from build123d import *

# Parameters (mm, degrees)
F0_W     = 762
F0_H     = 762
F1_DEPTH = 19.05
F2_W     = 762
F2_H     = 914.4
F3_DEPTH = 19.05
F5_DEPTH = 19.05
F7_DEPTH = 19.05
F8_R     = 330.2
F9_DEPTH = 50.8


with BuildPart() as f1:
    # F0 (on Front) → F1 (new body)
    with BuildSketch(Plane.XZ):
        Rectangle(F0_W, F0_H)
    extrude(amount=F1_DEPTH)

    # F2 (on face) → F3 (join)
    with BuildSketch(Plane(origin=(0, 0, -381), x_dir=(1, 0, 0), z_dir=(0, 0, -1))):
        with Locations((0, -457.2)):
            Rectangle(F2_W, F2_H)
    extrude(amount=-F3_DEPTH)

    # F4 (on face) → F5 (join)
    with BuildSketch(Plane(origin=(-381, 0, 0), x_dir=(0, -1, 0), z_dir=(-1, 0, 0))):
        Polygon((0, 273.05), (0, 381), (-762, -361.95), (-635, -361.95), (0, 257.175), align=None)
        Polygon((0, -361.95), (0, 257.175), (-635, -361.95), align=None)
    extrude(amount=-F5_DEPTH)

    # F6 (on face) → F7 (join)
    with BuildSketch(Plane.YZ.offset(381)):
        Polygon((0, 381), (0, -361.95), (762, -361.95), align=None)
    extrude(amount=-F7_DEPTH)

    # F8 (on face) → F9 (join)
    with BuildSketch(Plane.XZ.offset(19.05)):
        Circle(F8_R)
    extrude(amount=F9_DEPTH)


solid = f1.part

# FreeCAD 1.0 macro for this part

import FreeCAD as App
import Part
import Sketcher
Q = App.Units.Quantity


def add_polygon(sketch, points):
    """Adds a closed chain of lines whose ends are joined by coincident constraints."""
    first, n = sketch.GeometryCount, len(points)
    for a, b in zip(points, points[1:] + points[:1]):
        sketch.addGeometry(Part.LineSegment(App.Vector(*a, 0), App.Vector(*b, 0)), False)
    for i in range(n):
        sketch.addConstraint(Sketcher.Constraint("Coincident", first + i, 2, first + (i + 1) % n, 1))

doc = App.newDocument("Part")
params = doc.addObject("Spreadsheet::Sheet", "Params")
for row, (alias, value) in enumerate([
    ("sketch1_width", "30 in"),
    ("pad1_length", "0.75 in"),
    ("sketch2_width", "30 in"),
    ("sketch2_height", "36 in"),
    ("pad2_length", "0.75 in"),
    ("sketch3_width", "30 in"),
    ("sketch3_height", "29.25 in"),
    ("pad3_length", "0.75 in"),
    ("sketch4_width", "30 in"),
    ("sketch4_height", "29.25 in"),
    ("pad4_length", "0.75 in"),
    ("sketch5_diameter", "26 in"),
    ("pad5_length", "2 in"),
], start=1):
    params.set(f"A{row}", alias)
    params.set(f"B{row}", "=" + value)
    params.setAlias(f"B{row}", alias)

body = doc.addObject("PartDesign::Body", "Body")

sketch1 = doc.addObject("Sketcher::SketchObject", "Sketch")
body.addObject(sketch1)
sketch1.AttachmentSupport = (doc.XZ_Plane, [""])
sketch1.MapMode = "FlatFace"
add_polygon(sketch1, [(-381, 381), (-381, -381), (381, -381), (381, 381)])
sketch1.addConstraint([
    Sketcher.Constraint("Vertical", 0),
    Sketcher.Constraint("Horizontal", 1),
    Sketcher.Constraint("Vertical", 2),
    Sketcher.Constraint("Horizontal", 3),
    Sketcher.Constraint("Symmetric", 0, 2, 2, 2, -1, 1),
    Sketcher.Constraint("Equal", 3, 0),
    Sketcher.Constraint("DistanceX", 1, 1, 1, 2, Q("30 in")),
])
sketch1.setExpression("Constraints[10]", "Params.sketch1_width")
pad1 = doc.addObject("PartDesign::Pad", "Pad")
body.addObject(pad1)
pad1.Profile = sketch1
pad1.setExpression("Length", "Params.pad1_length")

sketch2 = doc.addObject("Sketcher::SketchObject", "Sketch001")
body.addObject(sketch2)
sketch2.AttachmentSupport = (doc.XY_Plane, [""])
sketch2.MapMode = "FlatFace"
sketch2.AttachmentOffset = App.Placement(App.Vector(0, 0, -15 * 25.4), App.Rotation())
add_polygon(sketch2, [(-381, 0), (-381, 914.4), (381, 914.4), (381, 0)])
sketch2.addConstraint([
    Sketcher.Constraint("Vertical", 0),
    Sketcher.Constraint("Horizontal", 1),
    Sketcher.Constraint("Vertical", 2),
    Sketcher.Constraint("Horizontal", 3),
    Sketcher.Constraint("Symmetric", 2, 2, 3, 2, -1, 1),
    Sketcher.Constraint("DistanceX", 1, 1, 1, 2, Q("30 in")),
    Sketcher.Constraint("DistanceY", 0, 1, 0, 2, Q("36 in")),
])
sketch2.setExpression("Constraints[9]", "Params.sketch2_width")
sketch2.setExpression("Constraints[10]", "Params.sketch2_height")
pad2 = doc.addObject("PartDesign::Pad", "Pad001")
body.addObject(pad2)
pad2.Profile = sketch2
pad2.setExpression("Length", "Params.pad2_length")

sketch3 = doc.addObject("Sketcher::SketchObject", "Sketch002")
body.addObject(sketch3)
sketch3.AttachmentSupport = (doc.YZ_Plane, [""])
sketch3.MapMode = "FlatFace"
sketch3.AttachmentOffset = App.Placement(App.Vector(0, 0, -15 * 25.4), App.Rotation())
add_polygon(sketch3, [(0, 381), (762, -361.95), (0, -361.95)])
sketch3.addConstraint([
    Sketcher.Constraint("Horizontal", 1),
    Sketcher.Constraint("Vertical", 2),
    Sketcher.Constraint("PointOnObject", 1, 2, -2),
    Sketcher.Constraint("DistanceX", 1, 2, 1, 1, Q("30 in")),
    Sketcher.Constraint("DistanceY", -1, 1, 2, 2, Q("15 in")),
    Sketcher.Constraint("DistanceY", 2, 1, 2, 2, Q("29.25 in")),
])
sketch3.setExpression("Constraints[6]", "Params.sketch3_width")
sketch3.setExpression("Constraints[8]", "Params.sketch3_height")
pad3 = doc.addObject("PartDesign::Pad", "Pad002")
body.addObject(pad3)
pad3.Profile = sketch3
pad3.setExpression("Length", "Params.pad3_length")

sketch4 = doc.addObject("Sketcher::SketchObject", "Sketch003")
body.addObject(sketch4)
sketch4.AttachmentSupport = (doc.YZ_Plane, [""])
sketch4.MapMode = "FlatFace"
sketch4.AttachmentOffset = App.Placement(App.Vector(0, 0, 15 * 25.4), App.Rotation())
add_polygon(sketch4, [(0, 381), (0, -361.95), (762, -361.95)])
sketch4.addConstraint([
    Sketcher.Constraint("Vertical", 0),
    Sketcher.Constraint("Horizontal", 1),
    Sketcher.Constraint("PointOnObject", 0, 2, -2),
    Sketcher.Constraint("DistanceX", 1, 1, 1, 2, Q("30 in")),
    Sketcher.Constraint("DistanceY", -1, 1, 2, 2, Q("15 in")),
    Sketcher.Constraint("DistanceY", 0, 2, 0, 1, Q("29.25 in")),
])
sketch4.setExpression("Constraints[6]", "Params.sketch4_width")
sketch4.setExpression("Constraints[8]", "Params.sketch4_height")
pad4 = doc.addObject("PartDesign::Pad", "Pad003")
body.addObject(pad4)
pad4.Profile = sketch4
pad4.setExpression("Length", "Params.pad4_length")
pad4.Reversed = True

sketch5 = doc.addObject("Sketcher::SketchObject", "Sketch004")
body.addObject(sketch5)
sketch5.AttachmentSupport = (doc.XZ_Plane, [""])
sketch5.MapMode = "FlatFace"
sketch5.AttachmentOffset = App.Placement(App.Vector(0, 0, 0.75 * 25.4), App.Rotation())
sketch5.addGeometry(Part.Circle(App.Vector(0, 0, 0), App.Vector(0, 0, 1), 330.2), False)
sketch5.addConstraint([
    Sketcher.Constraint("Coincident", 0, 3, -1, 1),
    Sketcher.Constraint("Diameter", 0, Q("26 in")),
])
sketch5.setExpression("Constraints[1]", "Params.sketch5_diameter")
pad5 = doc.addObject("PartDesign::Pad", "Pad004")
body.addObject(pad5)
pad5.Profile = sketch5
pad5.setExpression("Length", "Params.pad5_length")

doc.recompute()
